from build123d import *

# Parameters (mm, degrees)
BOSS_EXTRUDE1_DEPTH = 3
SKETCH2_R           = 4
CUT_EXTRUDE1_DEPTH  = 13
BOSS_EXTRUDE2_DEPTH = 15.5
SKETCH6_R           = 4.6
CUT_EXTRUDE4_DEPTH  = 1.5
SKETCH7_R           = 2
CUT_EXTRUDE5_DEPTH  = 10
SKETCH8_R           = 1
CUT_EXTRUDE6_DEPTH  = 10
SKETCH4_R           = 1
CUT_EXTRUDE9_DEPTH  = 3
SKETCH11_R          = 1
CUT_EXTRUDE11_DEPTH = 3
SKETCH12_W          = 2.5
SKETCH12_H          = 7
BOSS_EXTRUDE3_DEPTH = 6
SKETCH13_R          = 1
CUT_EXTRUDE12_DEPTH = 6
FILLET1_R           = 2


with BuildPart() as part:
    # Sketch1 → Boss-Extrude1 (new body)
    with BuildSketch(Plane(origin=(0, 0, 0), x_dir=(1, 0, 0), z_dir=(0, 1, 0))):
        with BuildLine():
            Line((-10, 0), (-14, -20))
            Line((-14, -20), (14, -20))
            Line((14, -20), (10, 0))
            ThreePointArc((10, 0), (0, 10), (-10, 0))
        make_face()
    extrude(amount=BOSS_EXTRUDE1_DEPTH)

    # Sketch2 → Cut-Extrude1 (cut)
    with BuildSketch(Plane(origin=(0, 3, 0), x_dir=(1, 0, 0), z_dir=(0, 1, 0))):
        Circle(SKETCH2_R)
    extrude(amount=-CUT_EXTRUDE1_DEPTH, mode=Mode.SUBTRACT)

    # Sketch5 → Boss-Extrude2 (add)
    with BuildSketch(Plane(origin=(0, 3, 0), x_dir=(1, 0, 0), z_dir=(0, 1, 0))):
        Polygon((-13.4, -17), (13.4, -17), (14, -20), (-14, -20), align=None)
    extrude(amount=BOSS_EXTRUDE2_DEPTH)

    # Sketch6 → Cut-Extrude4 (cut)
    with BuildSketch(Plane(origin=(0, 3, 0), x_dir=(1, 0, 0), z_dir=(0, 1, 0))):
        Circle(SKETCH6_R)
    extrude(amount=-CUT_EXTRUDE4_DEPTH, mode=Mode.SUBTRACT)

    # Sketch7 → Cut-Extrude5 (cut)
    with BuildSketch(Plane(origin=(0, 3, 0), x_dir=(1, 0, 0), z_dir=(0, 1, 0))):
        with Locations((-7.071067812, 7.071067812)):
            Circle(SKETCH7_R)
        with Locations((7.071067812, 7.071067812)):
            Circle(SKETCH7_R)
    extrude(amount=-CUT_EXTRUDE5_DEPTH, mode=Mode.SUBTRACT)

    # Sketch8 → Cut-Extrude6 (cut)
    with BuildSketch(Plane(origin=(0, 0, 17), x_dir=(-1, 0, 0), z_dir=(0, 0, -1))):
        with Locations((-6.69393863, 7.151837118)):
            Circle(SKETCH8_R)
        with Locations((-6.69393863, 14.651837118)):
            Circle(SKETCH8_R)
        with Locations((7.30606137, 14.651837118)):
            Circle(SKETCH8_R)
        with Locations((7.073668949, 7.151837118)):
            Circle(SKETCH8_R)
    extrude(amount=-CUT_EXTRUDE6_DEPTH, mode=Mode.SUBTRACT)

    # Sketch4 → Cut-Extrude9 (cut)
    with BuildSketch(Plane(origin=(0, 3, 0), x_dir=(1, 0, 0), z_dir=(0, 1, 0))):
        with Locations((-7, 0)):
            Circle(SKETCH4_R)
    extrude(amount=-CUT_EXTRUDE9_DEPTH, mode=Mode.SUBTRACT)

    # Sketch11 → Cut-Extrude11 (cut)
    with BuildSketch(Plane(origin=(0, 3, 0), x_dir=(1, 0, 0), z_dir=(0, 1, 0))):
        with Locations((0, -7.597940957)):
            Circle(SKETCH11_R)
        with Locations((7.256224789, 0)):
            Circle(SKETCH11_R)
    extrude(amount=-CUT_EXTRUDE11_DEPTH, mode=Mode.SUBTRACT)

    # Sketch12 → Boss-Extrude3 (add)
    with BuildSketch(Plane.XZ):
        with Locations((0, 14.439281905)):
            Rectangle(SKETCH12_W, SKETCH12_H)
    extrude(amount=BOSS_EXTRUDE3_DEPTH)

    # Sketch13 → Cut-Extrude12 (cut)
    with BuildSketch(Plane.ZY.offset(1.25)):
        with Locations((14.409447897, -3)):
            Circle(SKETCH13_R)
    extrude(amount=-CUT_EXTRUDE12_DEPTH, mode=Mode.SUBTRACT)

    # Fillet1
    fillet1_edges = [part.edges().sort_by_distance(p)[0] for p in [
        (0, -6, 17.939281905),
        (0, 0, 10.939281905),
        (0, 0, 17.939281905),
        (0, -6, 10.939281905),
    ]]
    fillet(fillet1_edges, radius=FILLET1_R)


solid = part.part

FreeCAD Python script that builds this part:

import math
import FreeCAD as App
import Part
import Sketcher
from FreeCAD import Vector


def edges_at(feature, points):
    """Names of the edges that pass closest to the given points."""
    edges = feature.Shape.Edges
    near = lambda p: min(range(len(edges)), key=lambda i: edges[i].distToShape(Part.Vertex(*p))[0])
    return sorted({f"Edge{near(p) + 1}" for p in points})


def add_polygon(sketch, points):
    """Adds a closed chain of lines whose ends are joined by coincident constraints."""
    first, n = sketch.GeometryCount, len(points)
    for a, b in zip(points, points[1:] + points[:1]):
        sketch.addGeometry(Part.LineSegment(App.Vector(*a, 0), App.Vector(*b, 0)), False)
    for i in range(n):
        sketch.addConstraint(Sketcher.Constraint("Coincident", first + i, 2, first + (i + 1) % n, 1))

doc = App.newDocument("Part")
body = doc.addObject("PartDesign::Body", "Body")

sketch1 = body.newObject("Sketcher::SketchObject", "Sketch")
sketch1.AttachmentSupport = (doc.getObject("XZ_Plane"), [""])
sketch1.MapMode = "FlatFace"
sketch1.addGeometry([
    Part.LineSegment(Vector(-10, 0, 0), Vector(-14, 20, 0)),
    Part.LineSegment(Vector(-14, 20, 0), Vector(14, 20, 0)),
    Part.LineSegment(Vector(14, 20, 0), Vector(10, 0, 0)),
    Part.ArcOfCircle(Part.Circle(Vector(0, 0, 0), Vector(0, 0, 1), 10), math.radians(180), math.radians(360)),
], False)
sketch1.addConstraint([
    Sketcher.Constraint("Coincident", 0, 2, 1, 1),
    Sketcher.Constraint("Coincident", 1, 2, 2, 1),
    Sketcher.Constraint("Coincident", 2, 2, 3, 2),
    Sketcher.Constraint("Coincident", 3, 1, 0, 1),
    Sketcher.Constraint("Horizontal", 1),
    Sketcher.Constraint("Coincident", 3, 3, -1, 1),
    Sketcher.Constraint("PointOnObject", 2, 2, -1),
    Sketcher.Constraint("PointOnObject", 3, 1, -1),
    Sketcher.Constraint("Equal", 0, 2),
    Sketcher.Constraint("Radius", 3, 10.0),
    Sketcher.Constraint("DistanceX", 1, 1, 1, 2, 28.0),
    Sketcher.Constraint("DistanceY", -1, 1, 0, 2, 20.0),
])
pad1 = body.newObject("PartDesign::Pad", "Pad")
pad1.Profile = sketch1
pad1.Length = 3
pad1.Reversed = True

sketch2 = body.newObject("Sketcher::SketchObject", "Sketch001")
sketch2.AttachmentSupport = (doc.getObject("XZ_Plane"), [""])
sketch2.MapMode = "FlatFace"
sketch2.AttachmentOffset = App.Placement(Vector(0, 0, -3), App.Rotation())
sketch2.addGeometry(Part.Circle(Vector(0, 0, 0), Vector(0, 0, 1), 4), False)
sketch2.addConstraint([
    Sketcher.Constraint("Coincident", 0, 3, -1, 1),
    Sketcher.Constraint("Diameter", 0, 8.0),
])
pocket1 = body.newObject("PartDesign::Pocket", "Pocket")
pocket1.Profile = sketch2
pocket1.Length = 13
pocket1.Reversed = True

sketch3 = body.newObject("Sketcher::SketchObject", "Sketch002")
sketch3.AttachmentSupport = (doc.getObject("XZ_Plane"), [""])
sketch3.MapMode = "FlatFace"
sketch3.AttachmentOffset = App.Placement(Vector(0, 0, -3), App.Rotation())
add_polygon(sketch3, [(13.4, 17), (-13.4, 17), (-14, 20), (14, 20)])
sketch3.addConstraint([
    Sketcher.Constraint("Horizontal", 0),
    Sketcher.Constraint("Horizontal", 2),
    Sketcher.Constraint("Equal", 1, 3),
    Sketcher.Constraint("DistanceX", 2, 1, 2, 2, 28.0),
    Sketcher.Constraint("DistanceX", 0, 2, 0, 1, 26.8),
    Sketcher.Constraint("DistanceY", -1, 1, 0, 2, 17.0),
    Sketcher.Constraint("DistanceX", 1, 2, -1, 1, 14.0),
    Sketcher.Constraint("DistanceY", -1, 1, 1, 2, 20.0),
])
pad2 = body.newObject("PartDesign::Pad", "Pad001")
pad2.Profile = sketch3
pad2.Length = 15.5
pad2.Reversed = True

sketch4 = body.newObject("Sketcher::SketchObject", "Sketch003")
sketch4.AttachmentSupport = (doc.getObject("XZ_Plane"), [""])
sketch4.MapMode = "FlatFace"
sketch4.AttachmentOffset = App.Placement(Vector(0, 0, -3), App.Rotation())
sketch4.addGeometry(Part.Circle(Vector(0, 0, 0), Vector(0, 0, 1), 4.6), False)
sketch4.addConstraint([
    Sketcher.Constraint("Coincident", 0, 3, -1, 1),
    Sketcher.Constraint("Diameter", 0, 9.2),
])
pocket2 = body.newObject("PartDesign::Pocket", "Pocket001")
pocket2.Profile = sketch4
pocket2.Length = 1.5
pocket2.Reversed = True

sketch5 = body.newObject("Sketcher::SketchObject", "Sketch004")
sketch5.AttachmentSupport = (doc.getObject("XZ_Plane"), [""])
sketch5.MapMode = "FlatFace"
sketch5.AttachmentOffset = App.Placement(Vector(0, 0, -3), App.Rotation())
sketch5.addGeometry([
    Part.Circle(Vector(-7.1, -7.1, 0), Vector(0, 0, 1), 2),
    Part.Circle(Vector(7.1, -7.1, 0), Vector(0, 0, 1), 2),
], False)
sketch5.addConstraint([
    Sketcher.Constraint("Equal", 0, 1),
    Sketcher.Constraint("Symmetric", 0, 3, 1, 3, -2),
    Sketcher.Constraint("Diameter", 0, 4.0),
    Sketcher.Constraint("DistanceX", 0, 3, -1, 1, 7.071068),
    Sketcher.Constraint("DistanceY", 0, 3, -1, 1, 7.071068),
])
pocket3 = body.newObject("PartDesign::Pocket", "Pocket002")
pocket3.Profile = sketch5
pocket3.Length = 10
pocket3.Reversed = True

sketch6 = body.newObject("Sketcher::SketchObject", "Sketch005")
sketch6.AttachmentSupport = (doc.getObject("XY_Plane"), [""])
sketch6.MapMode = "FlatFace"
sketch6.AttachmentOffset = App.Placement(Vector(0, 0, 17), App.Rotation())
sketch6.addGeometry([
    Part.Circle(Vector(6.7, 7.2, 0), Vector(0, 0, 1), 1),
    Part.Circle(Vector(6.7, 14.7, 0), Vector(0, 0, 1), 1),
    Part.Circle(Vector(-7.3, 14.7, 0), Vector(0, 0, 1), 1),
    Part.Circle(Vector(-7.1, 7.2, 0), Vector(0, 0, 1), 1),
], False)
sketch6.addConstraint([
    Sketcher.Constraint("Equal", 0, 1),
    Sketcher.Constraint("Equal", 1, 2),
    Sketcher.Constraint("Equal", 2, 3),
    Sketcher.Constraint("Horizontal", 1, 3, 2, 3),
    Sketcher.Constraint("Horizontal", 0, 3, 3, 3),
    Sketcher.Constraint("Vertical", 0, 3, 1, 3),
    Sketcher.Constraint("Diameter", 0, 2.0),
    Sketcher.Constraint("DistanceX", 2, 3, 1, 3, 14.0),
    Sketcher.Constraint("DistanceY", 0, 3, 1, 3, 7.5),
    Sketcher.Constraint("DistanceX", -1, 1, 0, 3, 6.693939),
    Sketcher.Constraint("DistanceX", 3, 3, -1, 1, 7.073669),
    Sketcher.Constraint("DistanceY", -1, 1, 0, 3, 7.151837),
])
pocket4 = body.newObject("PartDesign::Pocket", "Pocket003")
pocket4.Profile = sketch6
pocket4.Length = 10
pocket4.Reversed = True

sketch7 = body.newObject("Sketcher::SketchObject", "Sketch006")
sketch7.AttachmentSupport = (doc.getObject("XZ_Plane"), [""])
sketch7.MapMode = "FlatFace"
sketch7.AttachmentOffset = App.Placement(Vector(0, 0, -3), App.Rotation())
sketch7.addGeometry(Part.Circle(Vector(-7, 0, 0), Vector(0, 0, 1), 1), False)
sketch7.addConstraint([
    Sketcher.Constraint("PointOnObject", 0, 3, -1),
    Sketcher.Constraint("Diameter", 0, 2.0),
    Sketcher.Constraint("DistanceX", 0, 3, -1, 1, 7.0),
])
pocket5 = body.newObject("PartDesign::Pocket", "Pocket004")
pocket5.Profile = sketch7
pocket5.Length = 3
pocket5.Reversed = True

sketch8 = body.newObject("Sketcher::SketchObject", "Sketch007")
sketch8.AttachmentSupport = (doc.getObject("XZ_Plane"), [""])
sketch8.MapMode = "FlatFace"
sketch8.AttachmentOffset = App.Placement(Vector(0, 0, -3), App.Rotation())
sketch8.addGeometry([
    Part.Circle(Vector(0, 7.6, 0), Vector(0, 0, 1), 1),
    Part.Circle(Vector(7.3, 0, 0), Vector(0, 0, 1), 1),
], False)
sketch8.addConstraint([
    Sketcher.Constraint("Equal", 0, 1),
    Sketcher.Constraint("PointOnObject", 0, 3, -2),
    Sketcher.Constraint("PointOnObject", 1, 3, -1),
    Sketcher.Constraint("Diameter", 0, 2.0),
    Sketcher.Constraint("DistanceY", -1, 1, 0, 3, 7.597941),
    Sketcher.Constraint("DistanceX", -1, 1, 1, 3, 7.256225),
])
pocket6 = body.newObject("PartDesign::Pocket", "Pocket005")
pocket6.Profile = sketch8
pocket6.Length = 3
pocket6.Reversed = True

sketch9 = body.newObject("Sketcher::SketchObject", "Sketch008")
sketch9.AttachmentSupport = (doc.getObject("XZ_Plane"), [""])
sketch9.MapMode = "FlatFace"
add_polygon(sketch9, [(-1.2, 17.9), (-1.2, 10.9), (1.2, 10.9), (1.2, 17.9)])
sketch9.addConstraint([
    Sketcher.Constraint("Vertical", 0),
    Sketcher.Constraint("Horizontal", 1),
    Sketcher.Constraint("Vertical", 2),
    Sketcher.Constraint("Horizontal", 3),
    Sketcher.Constraint("DistanceY", 0, 2, 0, 1, 7.0),
    Sketcher.Constraint("DistanceX", 1, 1, 1, 2, 2.5),
    Sketcher.Constraint("DistanceX", 0, 2, -1, 1, 1.25),
    Sketcher.Constraint("DistanceY", -1, 1, 0, 2, 10.939282),
])
pad3 = body.newObject("PartDesign::Pad", "Pad002")
pad3.Profile = sketch9
pad3.Length = 6

sketch10 = body.newObject("Sketcher::SketchObject", "Sketch009")
sketch10.AttachmentSupport = (doc.getObject("YZ_Plane"), [""])
sketch10.MapMode = "FlatFace"
sketch10.AttachmentOffset = App.Placement(Vector(0, 0, -1.25), App.Rotation())
sketch10.addGeometry(Part.Circle(Vector(-3, 14.4, 0), Vector(0, 0, 1), 1), False)
sketch10.addConstraint([
    Sketcher.Constraint("Diameter", 0, 2.0),
    Sketcher.Constraint("DistanceX", 0, 3, -1, 1, 3.0),
    Sketcher.Constraint("DistanceY", -1, 1, 0, 3, 14.409448),
])
pocket7 = body.newObject("PartDesign::Pocket", "Pocket006")
pocket7.Profile = sketch10
pocket7.Length = 6
pocket7.Reversed = True
doc.recompute()

fillet = body.newObject("PartDesign::Fillet", "Fillet")
fillet.Base = (pocket7, edges_at(pocket7, [
    (0, -6, 17.939),
    (0, 0, 10.939),
    (0, 0, 17.939),
    (0, -6, 10.939),
]))
fillet.Radius = 2

doc.recompute()
